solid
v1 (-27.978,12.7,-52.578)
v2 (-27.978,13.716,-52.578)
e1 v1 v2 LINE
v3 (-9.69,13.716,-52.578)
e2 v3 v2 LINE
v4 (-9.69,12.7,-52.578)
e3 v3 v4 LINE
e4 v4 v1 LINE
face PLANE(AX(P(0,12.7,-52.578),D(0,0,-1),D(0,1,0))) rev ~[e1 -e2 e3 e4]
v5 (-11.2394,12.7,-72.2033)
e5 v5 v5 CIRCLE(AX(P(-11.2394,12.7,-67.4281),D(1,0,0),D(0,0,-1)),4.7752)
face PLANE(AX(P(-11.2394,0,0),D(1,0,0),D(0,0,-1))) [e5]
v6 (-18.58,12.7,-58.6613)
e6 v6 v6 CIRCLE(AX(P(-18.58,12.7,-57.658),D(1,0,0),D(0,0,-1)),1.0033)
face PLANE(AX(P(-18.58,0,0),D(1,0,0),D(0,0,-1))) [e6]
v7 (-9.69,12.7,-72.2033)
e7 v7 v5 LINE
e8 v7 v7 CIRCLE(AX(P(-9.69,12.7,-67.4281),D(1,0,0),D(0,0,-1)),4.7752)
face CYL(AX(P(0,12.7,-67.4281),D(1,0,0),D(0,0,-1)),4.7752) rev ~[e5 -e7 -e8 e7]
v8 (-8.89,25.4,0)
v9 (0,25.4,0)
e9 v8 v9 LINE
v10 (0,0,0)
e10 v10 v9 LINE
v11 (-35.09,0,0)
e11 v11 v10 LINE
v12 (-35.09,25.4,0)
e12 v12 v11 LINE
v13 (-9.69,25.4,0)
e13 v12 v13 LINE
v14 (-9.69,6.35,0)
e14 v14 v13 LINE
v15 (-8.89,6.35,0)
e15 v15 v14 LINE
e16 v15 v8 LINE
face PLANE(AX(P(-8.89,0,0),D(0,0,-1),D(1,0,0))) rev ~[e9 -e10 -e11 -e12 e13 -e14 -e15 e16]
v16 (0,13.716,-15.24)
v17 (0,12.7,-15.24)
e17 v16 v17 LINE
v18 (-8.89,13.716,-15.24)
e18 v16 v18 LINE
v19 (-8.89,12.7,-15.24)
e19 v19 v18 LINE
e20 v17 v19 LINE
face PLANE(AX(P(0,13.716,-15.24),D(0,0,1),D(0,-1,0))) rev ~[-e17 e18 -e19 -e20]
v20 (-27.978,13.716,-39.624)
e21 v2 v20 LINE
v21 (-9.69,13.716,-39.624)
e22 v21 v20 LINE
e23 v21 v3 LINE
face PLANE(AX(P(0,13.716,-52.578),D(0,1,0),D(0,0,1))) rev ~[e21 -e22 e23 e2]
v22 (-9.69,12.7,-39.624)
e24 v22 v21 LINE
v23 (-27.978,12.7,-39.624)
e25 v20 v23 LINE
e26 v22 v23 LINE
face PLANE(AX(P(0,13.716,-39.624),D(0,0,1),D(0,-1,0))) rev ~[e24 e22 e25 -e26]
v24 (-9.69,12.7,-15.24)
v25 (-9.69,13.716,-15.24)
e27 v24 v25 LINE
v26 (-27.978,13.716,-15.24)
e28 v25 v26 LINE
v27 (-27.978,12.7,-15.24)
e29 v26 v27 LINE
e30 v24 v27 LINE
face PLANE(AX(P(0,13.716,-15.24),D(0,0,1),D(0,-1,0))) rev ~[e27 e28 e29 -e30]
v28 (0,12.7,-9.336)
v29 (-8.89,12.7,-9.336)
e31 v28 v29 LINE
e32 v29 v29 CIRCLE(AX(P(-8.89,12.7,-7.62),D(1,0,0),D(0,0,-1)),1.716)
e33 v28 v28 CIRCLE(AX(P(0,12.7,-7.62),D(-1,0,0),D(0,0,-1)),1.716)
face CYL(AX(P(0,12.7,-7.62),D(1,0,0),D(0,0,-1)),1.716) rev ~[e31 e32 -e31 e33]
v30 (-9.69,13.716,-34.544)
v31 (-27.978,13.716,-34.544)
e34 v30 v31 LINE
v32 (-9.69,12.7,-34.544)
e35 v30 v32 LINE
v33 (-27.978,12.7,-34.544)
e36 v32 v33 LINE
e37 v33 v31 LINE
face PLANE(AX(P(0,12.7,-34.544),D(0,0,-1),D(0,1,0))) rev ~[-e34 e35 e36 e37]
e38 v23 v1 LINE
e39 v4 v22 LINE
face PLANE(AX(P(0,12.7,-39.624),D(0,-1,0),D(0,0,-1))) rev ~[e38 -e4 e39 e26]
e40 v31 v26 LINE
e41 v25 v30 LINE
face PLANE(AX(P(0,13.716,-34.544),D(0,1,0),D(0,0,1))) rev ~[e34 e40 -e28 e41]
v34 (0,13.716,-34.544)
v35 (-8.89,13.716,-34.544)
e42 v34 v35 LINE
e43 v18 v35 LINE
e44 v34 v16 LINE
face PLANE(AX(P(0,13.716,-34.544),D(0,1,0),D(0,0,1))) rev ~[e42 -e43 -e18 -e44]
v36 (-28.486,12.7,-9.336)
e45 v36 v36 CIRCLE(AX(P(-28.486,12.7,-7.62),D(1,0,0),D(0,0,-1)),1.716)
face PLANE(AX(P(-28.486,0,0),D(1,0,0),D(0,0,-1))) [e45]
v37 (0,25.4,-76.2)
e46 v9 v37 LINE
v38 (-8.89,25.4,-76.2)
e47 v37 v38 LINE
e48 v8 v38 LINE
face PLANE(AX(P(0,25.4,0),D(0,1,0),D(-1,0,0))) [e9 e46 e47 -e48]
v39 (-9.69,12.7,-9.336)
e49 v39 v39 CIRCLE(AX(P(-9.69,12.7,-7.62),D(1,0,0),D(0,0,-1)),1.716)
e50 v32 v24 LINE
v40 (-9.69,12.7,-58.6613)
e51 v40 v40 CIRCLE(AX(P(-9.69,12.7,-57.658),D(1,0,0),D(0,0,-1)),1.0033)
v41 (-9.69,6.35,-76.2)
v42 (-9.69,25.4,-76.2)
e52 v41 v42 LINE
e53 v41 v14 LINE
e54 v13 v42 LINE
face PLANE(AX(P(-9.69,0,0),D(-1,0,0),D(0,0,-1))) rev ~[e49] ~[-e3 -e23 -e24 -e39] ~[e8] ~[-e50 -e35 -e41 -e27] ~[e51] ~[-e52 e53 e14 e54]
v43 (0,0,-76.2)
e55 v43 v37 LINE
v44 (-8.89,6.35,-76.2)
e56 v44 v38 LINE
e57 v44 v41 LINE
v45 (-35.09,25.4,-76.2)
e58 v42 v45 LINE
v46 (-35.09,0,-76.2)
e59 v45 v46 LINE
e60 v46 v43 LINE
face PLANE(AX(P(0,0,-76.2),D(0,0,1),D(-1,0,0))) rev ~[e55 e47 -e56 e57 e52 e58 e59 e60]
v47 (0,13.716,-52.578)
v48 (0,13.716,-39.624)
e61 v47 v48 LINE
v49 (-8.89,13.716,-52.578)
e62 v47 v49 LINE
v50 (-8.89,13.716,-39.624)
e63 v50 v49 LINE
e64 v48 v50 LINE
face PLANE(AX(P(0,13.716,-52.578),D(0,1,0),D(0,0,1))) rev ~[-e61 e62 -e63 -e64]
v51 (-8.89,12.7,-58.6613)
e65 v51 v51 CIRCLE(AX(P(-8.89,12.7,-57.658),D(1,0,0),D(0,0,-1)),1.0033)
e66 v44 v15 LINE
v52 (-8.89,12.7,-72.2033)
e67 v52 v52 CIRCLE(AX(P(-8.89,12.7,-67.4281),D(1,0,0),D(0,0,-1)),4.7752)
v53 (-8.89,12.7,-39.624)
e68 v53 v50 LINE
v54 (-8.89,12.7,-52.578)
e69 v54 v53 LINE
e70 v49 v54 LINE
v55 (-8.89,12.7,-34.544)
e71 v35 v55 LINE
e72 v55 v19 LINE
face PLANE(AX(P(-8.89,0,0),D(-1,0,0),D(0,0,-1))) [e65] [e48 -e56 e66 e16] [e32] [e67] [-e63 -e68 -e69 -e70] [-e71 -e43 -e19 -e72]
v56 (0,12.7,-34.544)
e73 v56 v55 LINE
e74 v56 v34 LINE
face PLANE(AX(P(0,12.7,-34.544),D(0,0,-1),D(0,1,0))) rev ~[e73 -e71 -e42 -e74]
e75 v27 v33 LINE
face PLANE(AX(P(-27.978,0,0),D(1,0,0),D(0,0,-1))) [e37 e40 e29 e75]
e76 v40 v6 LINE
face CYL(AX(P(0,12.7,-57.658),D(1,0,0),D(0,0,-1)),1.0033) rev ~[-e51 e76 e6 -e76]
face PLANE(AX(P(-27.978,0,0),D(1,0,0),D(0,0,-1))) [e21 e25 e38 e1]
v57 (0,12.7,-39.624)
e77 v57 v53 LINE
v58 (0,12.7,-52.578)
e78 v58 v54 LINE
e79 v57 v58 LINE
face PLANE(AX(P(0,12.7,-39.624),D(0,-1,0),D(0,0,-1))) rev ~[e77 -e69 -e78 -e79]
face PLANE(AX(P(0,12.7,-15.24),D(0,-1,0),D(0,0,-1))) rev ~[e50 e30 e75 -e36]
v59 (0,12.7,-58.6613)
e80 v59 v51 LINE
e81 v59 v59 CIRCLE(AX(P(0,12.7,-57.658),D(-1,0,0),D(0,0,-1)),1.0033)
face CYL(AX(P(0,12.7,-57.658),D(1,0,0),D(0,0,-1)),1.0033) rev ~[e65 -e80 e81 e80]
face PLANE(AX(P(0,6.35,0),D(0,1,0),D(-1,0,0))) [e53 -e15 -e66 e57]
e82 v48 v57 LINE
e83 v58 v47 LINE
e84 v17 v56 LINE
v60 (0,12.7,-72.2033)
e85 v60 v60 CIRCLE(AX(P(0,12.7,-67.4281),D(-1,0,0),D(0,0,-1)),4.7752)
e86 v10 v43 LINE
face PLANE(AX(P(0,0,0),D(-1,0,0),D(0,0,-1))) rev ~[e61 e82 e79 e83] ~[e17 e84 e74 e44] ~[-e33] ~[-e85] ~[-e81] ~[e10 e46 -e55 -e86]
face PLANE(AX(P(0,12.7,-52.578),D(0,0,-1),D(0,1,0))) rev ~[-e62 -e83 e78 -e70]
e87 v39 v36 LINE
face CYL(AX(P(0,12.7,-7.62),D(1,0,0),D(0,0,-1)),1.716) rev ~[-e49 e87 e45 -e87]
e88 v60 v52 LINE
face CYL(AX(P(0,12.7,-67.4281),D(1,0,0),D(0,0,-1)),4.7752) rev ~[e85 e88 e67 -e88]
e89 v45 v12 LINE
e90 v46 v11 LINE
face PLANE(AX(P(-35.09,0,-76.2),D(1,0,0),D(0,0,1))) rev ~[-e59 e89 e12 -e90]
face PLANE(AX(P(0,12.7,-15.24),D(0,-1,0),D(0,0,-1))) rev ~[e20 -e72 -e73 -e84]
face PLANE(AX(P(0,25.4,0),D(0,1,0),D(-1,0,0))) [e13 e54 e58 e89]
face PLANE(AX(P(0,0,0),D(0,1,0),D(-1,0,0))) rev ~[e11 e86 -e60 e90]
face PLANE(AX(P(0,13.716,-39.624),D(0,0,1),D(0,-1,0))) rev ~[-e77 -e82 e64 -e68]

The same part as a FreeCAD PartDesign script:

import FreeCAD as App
import Part
import Sketcher
from FreeCAD import Vector
Q = App.Units.Quantity

doc = App.newDocument("Part")
body = doc.addObject("PartDesign::Body", "Body")

sketch1 = doc.addObject("Sketcher::SketchObject", "Sketch")
body.addObject(sketch1)
sketch1.AttachmentSupport = (doc.XZ_Plane, [""])
sketch1.MapMode = "FlatFace"
sketch1.addGeometry([
    Part.LineSegment(Vector(0, 0, 0), Vector(0, -76, 0)),
    Part.LineSegment(Vector(0, -76, 0), Vector(-35, -76, 0)),
    Part.LineSegment(Vector(-35, -76, 0), Vector(-35, 0, 0)),
    Part.LineSegment(Vector(-35, 0, 0), Vector(0, 0, 0)),
], False)
sketch1.addConstraint([
    Sketcher.Constraint("Coincident", 0, 2, 1, 1),
    Sketcher.Constraint("Coincident", 1, 2, 2, 1),
    Sketcher.Constraint("Coincident", 2, 2, 3, 1),
    Sketcher.Constraint("Coincident", 3, 2, 0, 1),
    Sketcher.Constraint("Vertical", 0),
    Sketcher.Constraint("Horizontal", 1),
    Sketcher.Constraint("Vertical", 2),
    Sketcher.Constraint("Horizontal", 3),
    Sketcher.Constraint("Coincident", 3, 2, -1, 1),
    Sketcher.Constraint("DistanceY", 0, 2, 0, 1, Q("3 in")),
    Sketcher.Constraint("DistanceX", 1, 2, 1, 1, Q("1.3815 in")),
])
pad1 = doc.addObject("PartDesign::Pad", "Pad")
body.addObject(pad1)
pad1.Profile = sketch1
pad1.Length = Q("0.25 in")
pad1.Reversed = True

sketch2 = doc.addObject("Sketcher::SketchObject", "Sketch001")
body.addObject(sketch2)
sketch2.AttachmentSupport = (doc.XZ_Plane, [""])
sketch2.MapMode = "FlatFace"
sketch2.addGeometry([
    Part.LineSegment(Vector(-9, 0, 0), Vector(0, 0, 0)),
    Part.LineSegment(Vector(0, 0, 0), Vector(0, -76, 0)),
    Part.LineSegment(Vector(0, -76, 0), Vector(-9, -76, 0)),
    Part.LineSegment(Vector(-9, -76, 0), Vector(-9, 0, 0)),
], False)
sketch2.addConstraint([
    Sketcher.Constraint("Coincident", 0, 2, 1, 1),
    Sketcher.Constraint("Coincident", 1, 2, 2, 1),
    Sketcher.Constraint("Coincident", 2, 2, 3, 1),
    Sketcher.Constraint("Coincident", 3, 2, 0, 1),
    Sketcher.Constraint("Horizontal", 0),
    Sketcher.Constraint("Vertical", 1),
    Sketcher.Constraint("Horizontal", 2),
    Sketcher.Constraint("Vertical", 3),
    Sketcher.Constraint("Coincident", 0, 2, -1, 1),
    Sketcher.Constraint("DistanceY", 1, 2, 1, 1, Q("3 in")),
    Sketcher.Constraint("DistanceX", 0, 1, 0, 2, Q("0.35 in")),
])
pad2 = doc.addObject("PartDesign::Pad", "Pad001")
body.addObject(pad2)
pad2.Profile = sketch2
pad2.Length = Q("1 in")
pad2.Reversed = True

sketch3 = doc.addObject("Sketcher::SketchObject", "Sketch002")
body.addObject(sketch3)
sketch3.AttachmentSupport = (doc.XZ_Plane, [""])
sketch3.MapMode = "FlatFace"
sketch3.addGeometry([
    Part.LineSegment(Vector(-35, 0, 0), Vector(-10, 0, 0)),
    Part.LineSegment(Vector(-10, 0, 0), Vector(-10, -76, 0)),
    Part.LineSegment(Vector(-10, -76, 0), Vector(-35, -76, 0)),
    Part.LineSegment(Vector(-35, -76, 0), Vector(-35, 0, 0)),
], False)
sketch3.addConstraint([
    Sketcher.Constraint("Coincident", 0, 2, 1, 1),
    Sketcher.Constraint("Coincident", 1, 2, 2, 1),
    Sketcher.Constraint("Coincident", 2, 2, 3, 1),
    Sketcher.Constraint("Coincident", 3, 2, 0, 1),
    Sketcher.Constraint("Horizontal", 0),
    Sketcher.Constraint("Vertical", 1),
    Sketcher.Constraint("Horizontal", 2),
    Sketcher.Constraint("Vertical", 3),
    Sketcher.Constraint("PointOnObject", 0, 2, -1),
    Sketcher.Constraint("DistanceY", 1, 2, 1, 1, Q("3 in")),
    Sketcher.Constraint("DistanceX", 0, 1, 0, 2, Q("1 in")),
    Sketcher.Constraint("DistanceX", 2, 2, -1, 1, Q("1.3815 in")),
])
pad3 = doc.addObject("PartDesign::Pad", "Pad002")
body.addObject(pad3)
pad3.Profile = sketch3
pad3.Length = Q("1 in")
pad3.Reversed = True

sketch4 = doc.addObject("Sketcher::SketchObject", "Sketch003")
body.addObject(sketch4)
sketch4.AttachmentSupport = (doc.YZ_Plane, [""])
sketch4.MapMode = "FlatFace"
sketch4.addGeometry(Part.Circle(Vector(12.7, -7.6, 0), Vector(0, 0, 1), 1.7), False)
sketch4.addConstraint([
    Sketcher.Constraint("DistanceY", 0, 3, -1, 1, Q("0.3 in")),
    Sketcher.Constraint("DistanceX", -1, 1, 0, 3, Q("0.5 in")),
    Sketcher.Constraint("Diameter", 0, Q("3.432 mm")),
])
pocket1 = doc.addObject("PartDesign::Pocket", "Pocket")
body.addObject(pocket1)
pocket1.Profile = sketch4
pocket1.Length = Q("1.1214961 in")

sketch5 = doc.addObject("Sketcher::SketchObject", "Sketch004")
body.addObject(sketch5)
sketch5.AttachmentSupport = (doc.YZ_Plane, [""])
sketch5.MapMode = "FlatFace"
sketch5.addGeometry([
    Part.LineSegment(Vector(13.7, -39.6, 0), Vector(12.7, -39.6, 0)),
    Part.LineSegment(Vector(12.7, -39.6, 0), Vector(12.7, -52.6, 0)),
    Part.LineSegment(Vector(12.7, -52.6, 0), Vector(13.7, -52.6, 0)),
    Part.LineSegment(Vector(13.7, -52.6, 0), Vector(13.7, -39.6, 0)),
    Part.LineSegment(Vector(13.7, -15.2, 0), Vector(12.7, -15.2, 0)),
    Part.LineSegment(Vector(12.7, -15.2, 0), Vector(12.7, -34.5, 0)),
    Part.LineSegment(Vector(12.7, -34.5, 0), Vector(13.7, -34.5, 0)),
    Part.LineSegment(Vector(13.7, -34.5, 0), Vector(13.7, -15.2, 0)),
], False)
sketch5.addConstraint([
    Sketcher.Constraint("Coincident", 0, 2, 1, 1),
    Sketcher.Constraint("Coincident", 1, 2, 2, 1),
    Sketcher.Constraint("Coincident", 2, 2, 3, 1),
    Sketcher.Constraint("Coincident", 3, 2, 0, 1),
    Sketcher.Constraint("Coincident", 4, 2, 5, 1),
    Sketcher.Constraint("Coincident", 5, 2, 6, 1),
    Sketcher.Constraint("Coincident", 6, 2, 7, 1),
    Sketcher.Constraint("Coincident", 7, 2, 4, 1),
    Sketcher.Constraint("Horizontal", 0),
    Sketcher.Constraint("Vertical", 1),
    Sketcher.Constraint("Horizontal", 2),
    Sketcher.Constraint("Vertical", 3),
    Sketcher.Constraint("Horizontal", 4),
    Sketcher.Constraint("Vertical", 5),
    Sketcher.Constraint("Horizontal", 6),
    Sketcher.Constraint("Vertical", 7),
    Sketcher.Constraint("Vertical", 1, 2, 4, 2),
    Sketcher.Constraint("Vertical", 3, 2, 6, 2),
    Sketcher.Constraint("DistanceX", 0, 2, 0, 1, Q("0.04 in")),
    Sketcher.Constraint("DistanceY", 1, 2, 1, 1, Q("0.51 in")),
    Sketcher.Constraint("DistanceY", 5, 2, 5, 1, Q("0.76 in")),
    Sketcher.Constraint("DistanceY", 0, 2, 5, 2, Q("0.2 in")),
    Sketcher.Constraint("DistanceX", -1, 1, 0, 2, Q("0.5 in")),
    Sketcher.Constraint("DistanceY", 4, 2, -1, 1, Q("0.6 in")),
])
pocket2 = doc.addObject("PartDesign::Pocket", "Pocket001")
body.addObject(pocket2)
pocket2.Profile = sketch5
pocket2.Length = Q("1.1014961 in")

sketch6 = doc.addObject("Sketcher::SketchObject", "Sketch005")
body.addObject(sketch6)
sketch6.AttachmentSupport = (doc.YZ_Plane, [""])
sketch6.MapMode = "FlatFace"
sketch6.addGeometry(Part.Circle(Vector(12.7, -57.7, 0), Vector(0, 0, 1), 1), False)
sketch6.addConstraint([
    Sketcher.Constraint("Diameter", 0, Q("0.079 in")),
    Sketcher.Constraint("DistanceX", -1, 1, 0, 3, Q("0.5 in")),
    Sketcher.Constraint("DistanceY", 0, 3, -1, 1, Q("2.27 in")),
])
pocket3 = doc.addObject("PartDesign::Pocket", "Pocket002")
body.addObject(pocket3)
pocket3.Profile = sketch6
pocket3.Length = Q("0.7314961 in")

sketch7 = doc.addObject("Sketcher::SketchObject", "Sketch006")
body.addObject(sketch7)
sketch7.AttachmentSupport = (doc.YZ_Plane, [""])
sketch7.MapMode = "FlatFace"
sketch7.addGeometry(Part.Circle(Vector(12.7, -67.4, 0), Vector(0, 0, 1), 4.8), False)
sketch7.addConstraint([
    Sketcher.Constraint("Diameter", 0, Q("0.376 in")),
    Sketcher.Constraint("DistanceX", -1, 1, 0, 3, Q("0.5 in")),
    Sketcher.Constraint("DistanceY", 0, 3, -1, 1, Q("67.428 mm")),
])
pocket4 = doc.addObject("PartDesign::Pocket", "Pocket003")
body.addObject(pocket4)
pocket4.Profile = sketch7
pocket4.Length = Q("0.4424961 in")

doc.recompute()
